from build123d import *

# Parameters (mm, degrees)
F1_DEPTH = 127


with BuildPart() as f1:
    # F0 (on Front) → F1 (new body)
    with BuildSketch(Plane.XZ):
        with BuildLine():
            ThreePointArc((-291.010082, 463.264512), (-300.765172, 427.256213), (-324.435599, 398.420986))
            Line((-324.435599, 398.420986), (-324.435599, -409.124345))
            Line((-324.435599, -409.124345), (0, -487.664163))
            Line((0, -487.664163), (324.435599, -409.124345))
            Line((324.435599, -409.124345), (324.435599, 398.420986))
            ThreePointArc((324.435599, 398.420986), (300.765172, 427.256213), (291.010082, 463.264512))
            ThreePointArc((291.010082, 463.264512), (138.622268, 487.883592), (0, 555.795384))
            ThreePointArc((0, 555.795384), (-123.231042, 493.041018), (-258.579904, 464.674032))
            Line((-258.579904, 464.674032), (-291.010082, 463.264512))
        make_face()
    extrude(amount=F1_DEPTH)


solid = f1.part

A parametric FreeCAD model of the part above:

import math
import FreeCAD as App
import Part
import Sketcher
Q = App.Units.Quantity

doc = App.newDocument("Part")
params = doc.addObject("Spreadsheet::Sheet", "Params")
for row, (alias, value) in enumerate([
    ("sketch1_radius", "3.4999999 in"),
    ("pad1_length", "5 in"),
], start=1):
    params.set(f"A{row}", alias)
    params.set(f"B{row}", "=" + value)
    params.setAlias(f"B{row}", alias)

body = doc.addObject("PartDesign::Body", "Body")

# Sketch on XZ plane
sketch1 = doc.addObject("Sketcher::SketchObject", "Sketch")
body.addObject(sketch1)
sketch1.AttachmentSupport = (doc.XZ_Plane, [""])
sketch1.MapMode = "FlatFace"
sketch1.addGeometry([
    Part.ArcOfCircle(Part.Circle(App.Vector(-380, 468, 0), App.Vector(0, 0, 1), 89), math.radians(-51), math.radians(-3)),  # 0
    Part.LineSegment(App.Vector(-324, 398, 0), App.Vector(-324, -409, 0)),  # 1
    Part.LineSegment(App.Vector(-324, -409, 0), App.Vector(0, -488, 0)),  # 2
    Part.LineSegment(App.Vector(0, -488, 0), App.Vector(324, -409, 0)),  # 3
    Part.LineSegment(App.Vector(324, -409, 0), App.Vector(324, 398, 0)),  # 4
    Part.ArcOfCircle(Part.Circle(App.Vector(380, 468, 0), App.Vector(0, 0, 1), 89), math.radians(-177), math.radians(-129)),  # 5
    Part.ArcOfCircle(Part.Circle(App.Vector(298, 988, 0), App.Vector(0, 0, 1), 525), math.radians(-125), math.radians(-91)),  # 6
    Part.ArcOfCircle(Part.Circle(App.Vector(-298, 988, 0), App.Vector(0, 0, 1), 525), math.radians(-86), math.radians(-55)),  # 7
    Part.LineSegment(App.Vector(-259, 465, 0), App.Vector(-291, 463, 0)),  # 8
], False)
sketch1.addConstraint([
    Sketcher.Constraint("Coincident", 0, 1, 1, 1),
    Sketcher.Constraint("Coincident", 1, 2, 2, 1),
    Sketcher.Constraint("Coincident", 2, 2, 3, 1),
    Sketcher.Constraint("Coincident", 3, 2, 4, 1),
    Sketcher.Constraint("Coincident", 4, 2, 5, 2),
    Sketcher.Constraint("Coincident", 5, 1, 6, 2),
    Sketcher.Constraint("Coincident", 6, 1, 7, 2),
    Sketcher.Constraint("Coincident", 7, 1, 8, 1),
    Sketcher.Constraint("Coincident", 8, 2, 0, 2),
    Sketcher.Constraint("Vertical", 1),
    Sketcher.Constraint("Vertical", 4),
    Sketcher.Constraint("Equal", 0, 5),
    Sketcher.Constraint("Symmetric", 0, 3, 5, 3, -2),
    Sketcher.Constraint("Symmetric", 6, 3, 7, 3, -2),
    Sketcher.Constraint("Symmetric", 1, 2, 3, 2, -2),
    Sketcher.Constraint("PointOnObject", 2, 2, -2),
    Sketcher.Constraint("PointOnObject", 6, 1, -2),
    Sketcher.Constraint("Horizontal", 5, 1, 8, 2),
    Sketcher.Constraint("Radius", 0, Q("3.4999999 in")),
    Sketcher.Constraint("Radius", 7, 524.519661),
    Sketcher.Constraint("DistanceY", 0, 1, 0, 3, Q("2.7388998 in")),
    Sketcher.Constraint("DistanceY", 1, 2, 1, 1, 807.545331),
    Sketcher.Constraint("DistanceX", -1, 1, 6, 3, 297.559899),
    Sketcher.Constraint("DistanceX", 0, 1, -1, 1, 324.435599),
    Sketcher.Constraint("Distance", 2, 333.806772),
    Sketcher.Constraint("DistanceY", -1, 1, 0, 3, 467.989041),
    Sketcher.Constraint("DistanceY", -1, 1, 6, 3, 987.743281),
    Sketcher.Constraint("Distance", 8, 32.460795),
])
sketch1.setExpression("Constraints[18]", "Params.sketch1_radius")
pad1 = doc.addObject("PartDesign::Pad", "Pad")
body.addObject(pad1)
pad1.Profile = sketch1
pad1.setExpression("Length", "Params.pad1_length")

doc.recompute()
